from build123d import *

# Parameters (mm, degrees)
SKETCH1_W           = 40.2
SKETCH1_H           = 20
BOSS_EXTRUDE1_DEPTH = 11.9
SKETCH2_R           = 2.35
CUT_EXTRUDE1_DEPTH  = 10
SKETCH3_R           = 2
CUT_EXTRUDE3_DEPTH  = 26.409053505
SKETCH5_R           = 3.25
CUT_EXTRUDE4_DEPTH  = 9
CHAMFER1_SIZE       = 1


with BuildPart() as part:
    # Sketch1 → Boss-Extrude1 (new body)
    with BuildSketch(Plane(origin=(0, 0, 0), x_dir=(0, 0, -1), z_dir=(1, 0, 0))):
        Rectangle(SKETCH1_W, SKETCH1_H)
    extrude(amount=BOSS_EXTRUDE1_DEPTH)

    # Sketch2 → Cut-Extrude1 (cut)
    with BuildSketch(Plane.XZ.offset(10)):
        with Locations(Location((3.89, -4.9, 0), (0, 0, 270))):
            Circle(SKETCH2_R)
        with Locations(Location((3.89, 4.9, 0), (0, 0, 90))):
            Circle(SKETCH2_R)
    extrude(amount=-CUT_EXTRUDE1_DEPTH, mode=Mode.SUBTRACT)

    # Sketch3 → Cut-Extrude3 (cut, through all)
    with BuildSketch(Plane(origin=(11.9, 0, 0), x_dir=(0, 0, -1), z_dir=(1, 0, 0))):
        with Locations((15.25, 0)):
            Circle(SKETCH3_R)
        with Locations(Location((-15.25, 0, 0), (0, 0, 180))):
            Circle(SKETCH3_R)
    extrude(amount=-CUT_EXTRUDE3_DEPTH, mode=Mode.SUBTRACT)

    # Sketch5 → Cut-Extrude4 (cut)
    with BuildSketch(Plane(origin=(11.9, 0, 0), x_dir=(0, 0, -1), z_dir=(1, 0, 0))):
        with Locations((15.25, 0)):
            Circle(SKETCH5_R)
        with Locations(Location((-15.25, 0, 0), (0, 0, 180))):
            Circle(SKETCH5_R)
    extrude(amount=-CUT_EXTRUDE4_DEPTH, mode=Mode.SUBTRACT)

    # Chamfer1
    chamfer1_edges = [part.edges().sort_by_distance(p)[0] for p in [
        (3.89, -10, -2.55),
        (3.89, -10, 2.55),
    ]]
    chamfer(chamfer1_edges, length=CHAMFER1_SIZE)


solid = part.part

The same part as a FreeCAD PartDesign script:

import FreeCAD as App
import Part
import Sketcher

V = App.Vector


def edges_at(feature, points):
    """Names of the edges that pass closest to the given points."""
    edges = feature.Shape.Edges
    near = lambda p: min(range(len(edges)), key=lambda i: edges[i].distToShape(Part.Vertex(*p))[0])
    return sorted({f"Edge{near(p) + 1}" for p in points})


def add_polygon(sketch, points):
    """Adds a closed chain of lines whose ends are joined by coincident constraints."""
    first, n = sketch.GeometryCount, len(points)
    for a, b in zip(points, points[1:] + points[:1]):
        sketch.addGeometry(Part.LineSegment(App.Vector(*a, 0), App.Vector(*b, 0)), False)
    for i in range(n):
        sketch.addConstraint(Sketcher.Constraint("Coincident", first + i, 2, first + (i + 1) % n, 1))

doc = App.newDocument("Part")
params = doc.addObject("Spreadsheet::Sheet", "Params")
for row, (alias, value) in enumerate([
    ("sketch1_width", "20 mm"),
    ("sketch1_height", "40.2 mm"),
    ("pad1_length", "11.9 mm"),
    ("sketch2_diameter", "4.7 mm"),
    ("pocket1_length", "10 mm"),
    ("sketch3_diameter", "4 mm"),
    ("sketch4_diameter", "6.5 mm"),
    ("pocket3_length", "9 mm"),
    ("chamfer_size", "1 mm"),
], start=1):
    params.set(f"A{row}", alias)
    params.set(f"B{row}", "=" + value)
    params.setAlias(f"B{row}", alias)

body = doc.addObject("PartDesign::Body", "Body")

# Sketch on YZ plane
sketch1 = body.newObject("Sketcher::SketchObject", "Sketch")
sketch1.AttachmentSupport = (doc.getObject("YZ_Plane"), [""])
sketch1.MapMode = "FlatFace"
add_polygon(sketch1, [(10, 20), (-10, 20), (-10, -20), (10, -20)])  # lines 0-3
sketch1.addConstraint([
    Sketcher.Constraint("Horizontal", 0),
    Sketcher.Constraint("Vertical", 1),
    Sketcher.Constraint("Horizontal", 2),
    Sketcher.Constraint("Vertical", 3),
    Sketcher.Constraint("Symmetric", 0, 2, 2, 2, -1, 1),
    Sketcher.Constraint("DistanceX", 0, 2, 0, 1, 20.0),
    Sketcher.Constraint("DistanceY", 1, 2, 1, 1, 40.2),
])
sketch1.setExpression("Constraints[9]", "Params.sketch1_width")
sketch1.setExpression("Constraints[10]", "Params.sketch1_height")
pad1 = body.newObject("PartDesign::Pad", "Pad")
pad1.Profile = sketch1
pad1.setExpression("Length", "Params.pad1_length")

# Sketch on XZ plane
sketch2 = body.newObject("Sketcher::SketchObject", "Sketch001")
sketch2.AttachmentSupport = (doc.getObject("XZ_Plane"), [""])
sketch2.MapMode = "FlatFace"
sketch2.AttachmentOffset = App.Placement(V(0, 0, 10), App.Rotation())
sketch2.addGeometry([
    Part.Circle(V(3.9, -4.9, 0), V(0, 0, 1), 2.4),
    Part.Circle(V(3.9, 4.9, 0), V(0, 0, 1), 2.4),
], False)
sketch2.addConstraint([
    Sketcher.Constraint("Equal", 0, 1),
    Sketcher.Constraint("Symmetric", 0, 3, 1, 3, -1),
    Sketcher.Constraint("Diameter", 0, 4.7),
    Sketcher.Constraint("DistanceY", 0, 3, -1, 1, 4.9),
    Sketcher.Constraint("DistanceX", -1, 1, 0, 3, 3.89),
])
sketch2.setExpression("Constraints[2]", "Params.sketch2_diameter")
pocket1 = body.newObject("PartDesign::Pocket", "Pocket")
pocket1.Profile = sketch2
pocket1.setExpression("Length", "Params.pocket1_length")

# Sketch on YZ plane
sketch3 = body.newObject("Sketcher::SketchObject", "Sketch002")
sketch3.AttachmentSupport = (doc.getObject("YZ_Plane"), [""])
sketch3.MapMode = "FlatFace"
sketch3.AttachmentOffset = App.Placement(V(0, 0, 11.9), App.Rotation())
sketch3.addGeometry([
    Part.Circle(V(0, -15.2, 0), V(0, 0, 1), 2),
    Part.Circle(V(0, 15.2, 0), V(0, 0, 1), 2),
], False)
sketch3.addConstraint([
    Sketcher.Constraint("Equal", 0, 1),
    Sketcher.Constraint("Symmetric", 0, 3, 1, 3, -1, 1),
    Sketcher.Constraint("PointOnObject", 0, 3, -2),
    Sketcher.Constraint("Diameter", 0, 4.0),
    Sketcher.Constraint("DistanceY", 0, 3, 1, 3, 30.5),
])
sketch3.setExpression("Constraints[3]", "Params.sketch3_diameter")
pocket2 = body.newObject("PartDesign::Pocket", "Pocket001")
pocket2.Profile = sketch3
pocket2.Type = "ThroughAll"

# Sketch on YZ plane
sketch4 = body.newObject("Sketcher::SketchObject", "Sketch003")
sketch4.AttachmentSupport = (doc.getObject("YZ_Plane"), [""])
sketch4.MapMode = "FlatFace"
sketch4.AttachmentOffset = App.Placement(V(0, 0, 11.9), App.Rotation())
sketch4.addGeometry([
    Part.Circle(V(0, -15.2, 0), V(0, 0, 1), 3.2),
    Part.Circle(V(0, 15.2, 0), V(0, 0, 1), 3.2),
], False)
sketch4.addConstraint([
    Sketcher.Constraint("Equal", 0, 1),
    Sketcher.Constraint("Symmetric", 0, 3, 1, 3, -1, 1),
    Sketcher.Constraint("PointOnObject", 0, 3, -2),
    Sketcher.Constraint("Diameter", 0, 6.5),
    Sketcher.Constraint("DistanceY", 0, 3, 1, 3, 30.5),
])
sketch4.setExpression("Constraints[3]", "Params.sketch4_diameter")
pocket3 = body.newObject("PartDesign::Pocket", "Pocket002")
pocket3.Profile = sketch4
pocket3.setExpression("Length", "Params.pocket3_length")
doc.recompute()

chamfer = body.newObject("PartDesign::Chamfer", "Chamfer")
chamfer.Base = (pocket3, edges_at(pocket3, [(3.89, -10, -2.55), (3.89, -10, 2.55)]))
chamfer.setExpression("Size", "Params.chamfer_size")

doc.recompute()
